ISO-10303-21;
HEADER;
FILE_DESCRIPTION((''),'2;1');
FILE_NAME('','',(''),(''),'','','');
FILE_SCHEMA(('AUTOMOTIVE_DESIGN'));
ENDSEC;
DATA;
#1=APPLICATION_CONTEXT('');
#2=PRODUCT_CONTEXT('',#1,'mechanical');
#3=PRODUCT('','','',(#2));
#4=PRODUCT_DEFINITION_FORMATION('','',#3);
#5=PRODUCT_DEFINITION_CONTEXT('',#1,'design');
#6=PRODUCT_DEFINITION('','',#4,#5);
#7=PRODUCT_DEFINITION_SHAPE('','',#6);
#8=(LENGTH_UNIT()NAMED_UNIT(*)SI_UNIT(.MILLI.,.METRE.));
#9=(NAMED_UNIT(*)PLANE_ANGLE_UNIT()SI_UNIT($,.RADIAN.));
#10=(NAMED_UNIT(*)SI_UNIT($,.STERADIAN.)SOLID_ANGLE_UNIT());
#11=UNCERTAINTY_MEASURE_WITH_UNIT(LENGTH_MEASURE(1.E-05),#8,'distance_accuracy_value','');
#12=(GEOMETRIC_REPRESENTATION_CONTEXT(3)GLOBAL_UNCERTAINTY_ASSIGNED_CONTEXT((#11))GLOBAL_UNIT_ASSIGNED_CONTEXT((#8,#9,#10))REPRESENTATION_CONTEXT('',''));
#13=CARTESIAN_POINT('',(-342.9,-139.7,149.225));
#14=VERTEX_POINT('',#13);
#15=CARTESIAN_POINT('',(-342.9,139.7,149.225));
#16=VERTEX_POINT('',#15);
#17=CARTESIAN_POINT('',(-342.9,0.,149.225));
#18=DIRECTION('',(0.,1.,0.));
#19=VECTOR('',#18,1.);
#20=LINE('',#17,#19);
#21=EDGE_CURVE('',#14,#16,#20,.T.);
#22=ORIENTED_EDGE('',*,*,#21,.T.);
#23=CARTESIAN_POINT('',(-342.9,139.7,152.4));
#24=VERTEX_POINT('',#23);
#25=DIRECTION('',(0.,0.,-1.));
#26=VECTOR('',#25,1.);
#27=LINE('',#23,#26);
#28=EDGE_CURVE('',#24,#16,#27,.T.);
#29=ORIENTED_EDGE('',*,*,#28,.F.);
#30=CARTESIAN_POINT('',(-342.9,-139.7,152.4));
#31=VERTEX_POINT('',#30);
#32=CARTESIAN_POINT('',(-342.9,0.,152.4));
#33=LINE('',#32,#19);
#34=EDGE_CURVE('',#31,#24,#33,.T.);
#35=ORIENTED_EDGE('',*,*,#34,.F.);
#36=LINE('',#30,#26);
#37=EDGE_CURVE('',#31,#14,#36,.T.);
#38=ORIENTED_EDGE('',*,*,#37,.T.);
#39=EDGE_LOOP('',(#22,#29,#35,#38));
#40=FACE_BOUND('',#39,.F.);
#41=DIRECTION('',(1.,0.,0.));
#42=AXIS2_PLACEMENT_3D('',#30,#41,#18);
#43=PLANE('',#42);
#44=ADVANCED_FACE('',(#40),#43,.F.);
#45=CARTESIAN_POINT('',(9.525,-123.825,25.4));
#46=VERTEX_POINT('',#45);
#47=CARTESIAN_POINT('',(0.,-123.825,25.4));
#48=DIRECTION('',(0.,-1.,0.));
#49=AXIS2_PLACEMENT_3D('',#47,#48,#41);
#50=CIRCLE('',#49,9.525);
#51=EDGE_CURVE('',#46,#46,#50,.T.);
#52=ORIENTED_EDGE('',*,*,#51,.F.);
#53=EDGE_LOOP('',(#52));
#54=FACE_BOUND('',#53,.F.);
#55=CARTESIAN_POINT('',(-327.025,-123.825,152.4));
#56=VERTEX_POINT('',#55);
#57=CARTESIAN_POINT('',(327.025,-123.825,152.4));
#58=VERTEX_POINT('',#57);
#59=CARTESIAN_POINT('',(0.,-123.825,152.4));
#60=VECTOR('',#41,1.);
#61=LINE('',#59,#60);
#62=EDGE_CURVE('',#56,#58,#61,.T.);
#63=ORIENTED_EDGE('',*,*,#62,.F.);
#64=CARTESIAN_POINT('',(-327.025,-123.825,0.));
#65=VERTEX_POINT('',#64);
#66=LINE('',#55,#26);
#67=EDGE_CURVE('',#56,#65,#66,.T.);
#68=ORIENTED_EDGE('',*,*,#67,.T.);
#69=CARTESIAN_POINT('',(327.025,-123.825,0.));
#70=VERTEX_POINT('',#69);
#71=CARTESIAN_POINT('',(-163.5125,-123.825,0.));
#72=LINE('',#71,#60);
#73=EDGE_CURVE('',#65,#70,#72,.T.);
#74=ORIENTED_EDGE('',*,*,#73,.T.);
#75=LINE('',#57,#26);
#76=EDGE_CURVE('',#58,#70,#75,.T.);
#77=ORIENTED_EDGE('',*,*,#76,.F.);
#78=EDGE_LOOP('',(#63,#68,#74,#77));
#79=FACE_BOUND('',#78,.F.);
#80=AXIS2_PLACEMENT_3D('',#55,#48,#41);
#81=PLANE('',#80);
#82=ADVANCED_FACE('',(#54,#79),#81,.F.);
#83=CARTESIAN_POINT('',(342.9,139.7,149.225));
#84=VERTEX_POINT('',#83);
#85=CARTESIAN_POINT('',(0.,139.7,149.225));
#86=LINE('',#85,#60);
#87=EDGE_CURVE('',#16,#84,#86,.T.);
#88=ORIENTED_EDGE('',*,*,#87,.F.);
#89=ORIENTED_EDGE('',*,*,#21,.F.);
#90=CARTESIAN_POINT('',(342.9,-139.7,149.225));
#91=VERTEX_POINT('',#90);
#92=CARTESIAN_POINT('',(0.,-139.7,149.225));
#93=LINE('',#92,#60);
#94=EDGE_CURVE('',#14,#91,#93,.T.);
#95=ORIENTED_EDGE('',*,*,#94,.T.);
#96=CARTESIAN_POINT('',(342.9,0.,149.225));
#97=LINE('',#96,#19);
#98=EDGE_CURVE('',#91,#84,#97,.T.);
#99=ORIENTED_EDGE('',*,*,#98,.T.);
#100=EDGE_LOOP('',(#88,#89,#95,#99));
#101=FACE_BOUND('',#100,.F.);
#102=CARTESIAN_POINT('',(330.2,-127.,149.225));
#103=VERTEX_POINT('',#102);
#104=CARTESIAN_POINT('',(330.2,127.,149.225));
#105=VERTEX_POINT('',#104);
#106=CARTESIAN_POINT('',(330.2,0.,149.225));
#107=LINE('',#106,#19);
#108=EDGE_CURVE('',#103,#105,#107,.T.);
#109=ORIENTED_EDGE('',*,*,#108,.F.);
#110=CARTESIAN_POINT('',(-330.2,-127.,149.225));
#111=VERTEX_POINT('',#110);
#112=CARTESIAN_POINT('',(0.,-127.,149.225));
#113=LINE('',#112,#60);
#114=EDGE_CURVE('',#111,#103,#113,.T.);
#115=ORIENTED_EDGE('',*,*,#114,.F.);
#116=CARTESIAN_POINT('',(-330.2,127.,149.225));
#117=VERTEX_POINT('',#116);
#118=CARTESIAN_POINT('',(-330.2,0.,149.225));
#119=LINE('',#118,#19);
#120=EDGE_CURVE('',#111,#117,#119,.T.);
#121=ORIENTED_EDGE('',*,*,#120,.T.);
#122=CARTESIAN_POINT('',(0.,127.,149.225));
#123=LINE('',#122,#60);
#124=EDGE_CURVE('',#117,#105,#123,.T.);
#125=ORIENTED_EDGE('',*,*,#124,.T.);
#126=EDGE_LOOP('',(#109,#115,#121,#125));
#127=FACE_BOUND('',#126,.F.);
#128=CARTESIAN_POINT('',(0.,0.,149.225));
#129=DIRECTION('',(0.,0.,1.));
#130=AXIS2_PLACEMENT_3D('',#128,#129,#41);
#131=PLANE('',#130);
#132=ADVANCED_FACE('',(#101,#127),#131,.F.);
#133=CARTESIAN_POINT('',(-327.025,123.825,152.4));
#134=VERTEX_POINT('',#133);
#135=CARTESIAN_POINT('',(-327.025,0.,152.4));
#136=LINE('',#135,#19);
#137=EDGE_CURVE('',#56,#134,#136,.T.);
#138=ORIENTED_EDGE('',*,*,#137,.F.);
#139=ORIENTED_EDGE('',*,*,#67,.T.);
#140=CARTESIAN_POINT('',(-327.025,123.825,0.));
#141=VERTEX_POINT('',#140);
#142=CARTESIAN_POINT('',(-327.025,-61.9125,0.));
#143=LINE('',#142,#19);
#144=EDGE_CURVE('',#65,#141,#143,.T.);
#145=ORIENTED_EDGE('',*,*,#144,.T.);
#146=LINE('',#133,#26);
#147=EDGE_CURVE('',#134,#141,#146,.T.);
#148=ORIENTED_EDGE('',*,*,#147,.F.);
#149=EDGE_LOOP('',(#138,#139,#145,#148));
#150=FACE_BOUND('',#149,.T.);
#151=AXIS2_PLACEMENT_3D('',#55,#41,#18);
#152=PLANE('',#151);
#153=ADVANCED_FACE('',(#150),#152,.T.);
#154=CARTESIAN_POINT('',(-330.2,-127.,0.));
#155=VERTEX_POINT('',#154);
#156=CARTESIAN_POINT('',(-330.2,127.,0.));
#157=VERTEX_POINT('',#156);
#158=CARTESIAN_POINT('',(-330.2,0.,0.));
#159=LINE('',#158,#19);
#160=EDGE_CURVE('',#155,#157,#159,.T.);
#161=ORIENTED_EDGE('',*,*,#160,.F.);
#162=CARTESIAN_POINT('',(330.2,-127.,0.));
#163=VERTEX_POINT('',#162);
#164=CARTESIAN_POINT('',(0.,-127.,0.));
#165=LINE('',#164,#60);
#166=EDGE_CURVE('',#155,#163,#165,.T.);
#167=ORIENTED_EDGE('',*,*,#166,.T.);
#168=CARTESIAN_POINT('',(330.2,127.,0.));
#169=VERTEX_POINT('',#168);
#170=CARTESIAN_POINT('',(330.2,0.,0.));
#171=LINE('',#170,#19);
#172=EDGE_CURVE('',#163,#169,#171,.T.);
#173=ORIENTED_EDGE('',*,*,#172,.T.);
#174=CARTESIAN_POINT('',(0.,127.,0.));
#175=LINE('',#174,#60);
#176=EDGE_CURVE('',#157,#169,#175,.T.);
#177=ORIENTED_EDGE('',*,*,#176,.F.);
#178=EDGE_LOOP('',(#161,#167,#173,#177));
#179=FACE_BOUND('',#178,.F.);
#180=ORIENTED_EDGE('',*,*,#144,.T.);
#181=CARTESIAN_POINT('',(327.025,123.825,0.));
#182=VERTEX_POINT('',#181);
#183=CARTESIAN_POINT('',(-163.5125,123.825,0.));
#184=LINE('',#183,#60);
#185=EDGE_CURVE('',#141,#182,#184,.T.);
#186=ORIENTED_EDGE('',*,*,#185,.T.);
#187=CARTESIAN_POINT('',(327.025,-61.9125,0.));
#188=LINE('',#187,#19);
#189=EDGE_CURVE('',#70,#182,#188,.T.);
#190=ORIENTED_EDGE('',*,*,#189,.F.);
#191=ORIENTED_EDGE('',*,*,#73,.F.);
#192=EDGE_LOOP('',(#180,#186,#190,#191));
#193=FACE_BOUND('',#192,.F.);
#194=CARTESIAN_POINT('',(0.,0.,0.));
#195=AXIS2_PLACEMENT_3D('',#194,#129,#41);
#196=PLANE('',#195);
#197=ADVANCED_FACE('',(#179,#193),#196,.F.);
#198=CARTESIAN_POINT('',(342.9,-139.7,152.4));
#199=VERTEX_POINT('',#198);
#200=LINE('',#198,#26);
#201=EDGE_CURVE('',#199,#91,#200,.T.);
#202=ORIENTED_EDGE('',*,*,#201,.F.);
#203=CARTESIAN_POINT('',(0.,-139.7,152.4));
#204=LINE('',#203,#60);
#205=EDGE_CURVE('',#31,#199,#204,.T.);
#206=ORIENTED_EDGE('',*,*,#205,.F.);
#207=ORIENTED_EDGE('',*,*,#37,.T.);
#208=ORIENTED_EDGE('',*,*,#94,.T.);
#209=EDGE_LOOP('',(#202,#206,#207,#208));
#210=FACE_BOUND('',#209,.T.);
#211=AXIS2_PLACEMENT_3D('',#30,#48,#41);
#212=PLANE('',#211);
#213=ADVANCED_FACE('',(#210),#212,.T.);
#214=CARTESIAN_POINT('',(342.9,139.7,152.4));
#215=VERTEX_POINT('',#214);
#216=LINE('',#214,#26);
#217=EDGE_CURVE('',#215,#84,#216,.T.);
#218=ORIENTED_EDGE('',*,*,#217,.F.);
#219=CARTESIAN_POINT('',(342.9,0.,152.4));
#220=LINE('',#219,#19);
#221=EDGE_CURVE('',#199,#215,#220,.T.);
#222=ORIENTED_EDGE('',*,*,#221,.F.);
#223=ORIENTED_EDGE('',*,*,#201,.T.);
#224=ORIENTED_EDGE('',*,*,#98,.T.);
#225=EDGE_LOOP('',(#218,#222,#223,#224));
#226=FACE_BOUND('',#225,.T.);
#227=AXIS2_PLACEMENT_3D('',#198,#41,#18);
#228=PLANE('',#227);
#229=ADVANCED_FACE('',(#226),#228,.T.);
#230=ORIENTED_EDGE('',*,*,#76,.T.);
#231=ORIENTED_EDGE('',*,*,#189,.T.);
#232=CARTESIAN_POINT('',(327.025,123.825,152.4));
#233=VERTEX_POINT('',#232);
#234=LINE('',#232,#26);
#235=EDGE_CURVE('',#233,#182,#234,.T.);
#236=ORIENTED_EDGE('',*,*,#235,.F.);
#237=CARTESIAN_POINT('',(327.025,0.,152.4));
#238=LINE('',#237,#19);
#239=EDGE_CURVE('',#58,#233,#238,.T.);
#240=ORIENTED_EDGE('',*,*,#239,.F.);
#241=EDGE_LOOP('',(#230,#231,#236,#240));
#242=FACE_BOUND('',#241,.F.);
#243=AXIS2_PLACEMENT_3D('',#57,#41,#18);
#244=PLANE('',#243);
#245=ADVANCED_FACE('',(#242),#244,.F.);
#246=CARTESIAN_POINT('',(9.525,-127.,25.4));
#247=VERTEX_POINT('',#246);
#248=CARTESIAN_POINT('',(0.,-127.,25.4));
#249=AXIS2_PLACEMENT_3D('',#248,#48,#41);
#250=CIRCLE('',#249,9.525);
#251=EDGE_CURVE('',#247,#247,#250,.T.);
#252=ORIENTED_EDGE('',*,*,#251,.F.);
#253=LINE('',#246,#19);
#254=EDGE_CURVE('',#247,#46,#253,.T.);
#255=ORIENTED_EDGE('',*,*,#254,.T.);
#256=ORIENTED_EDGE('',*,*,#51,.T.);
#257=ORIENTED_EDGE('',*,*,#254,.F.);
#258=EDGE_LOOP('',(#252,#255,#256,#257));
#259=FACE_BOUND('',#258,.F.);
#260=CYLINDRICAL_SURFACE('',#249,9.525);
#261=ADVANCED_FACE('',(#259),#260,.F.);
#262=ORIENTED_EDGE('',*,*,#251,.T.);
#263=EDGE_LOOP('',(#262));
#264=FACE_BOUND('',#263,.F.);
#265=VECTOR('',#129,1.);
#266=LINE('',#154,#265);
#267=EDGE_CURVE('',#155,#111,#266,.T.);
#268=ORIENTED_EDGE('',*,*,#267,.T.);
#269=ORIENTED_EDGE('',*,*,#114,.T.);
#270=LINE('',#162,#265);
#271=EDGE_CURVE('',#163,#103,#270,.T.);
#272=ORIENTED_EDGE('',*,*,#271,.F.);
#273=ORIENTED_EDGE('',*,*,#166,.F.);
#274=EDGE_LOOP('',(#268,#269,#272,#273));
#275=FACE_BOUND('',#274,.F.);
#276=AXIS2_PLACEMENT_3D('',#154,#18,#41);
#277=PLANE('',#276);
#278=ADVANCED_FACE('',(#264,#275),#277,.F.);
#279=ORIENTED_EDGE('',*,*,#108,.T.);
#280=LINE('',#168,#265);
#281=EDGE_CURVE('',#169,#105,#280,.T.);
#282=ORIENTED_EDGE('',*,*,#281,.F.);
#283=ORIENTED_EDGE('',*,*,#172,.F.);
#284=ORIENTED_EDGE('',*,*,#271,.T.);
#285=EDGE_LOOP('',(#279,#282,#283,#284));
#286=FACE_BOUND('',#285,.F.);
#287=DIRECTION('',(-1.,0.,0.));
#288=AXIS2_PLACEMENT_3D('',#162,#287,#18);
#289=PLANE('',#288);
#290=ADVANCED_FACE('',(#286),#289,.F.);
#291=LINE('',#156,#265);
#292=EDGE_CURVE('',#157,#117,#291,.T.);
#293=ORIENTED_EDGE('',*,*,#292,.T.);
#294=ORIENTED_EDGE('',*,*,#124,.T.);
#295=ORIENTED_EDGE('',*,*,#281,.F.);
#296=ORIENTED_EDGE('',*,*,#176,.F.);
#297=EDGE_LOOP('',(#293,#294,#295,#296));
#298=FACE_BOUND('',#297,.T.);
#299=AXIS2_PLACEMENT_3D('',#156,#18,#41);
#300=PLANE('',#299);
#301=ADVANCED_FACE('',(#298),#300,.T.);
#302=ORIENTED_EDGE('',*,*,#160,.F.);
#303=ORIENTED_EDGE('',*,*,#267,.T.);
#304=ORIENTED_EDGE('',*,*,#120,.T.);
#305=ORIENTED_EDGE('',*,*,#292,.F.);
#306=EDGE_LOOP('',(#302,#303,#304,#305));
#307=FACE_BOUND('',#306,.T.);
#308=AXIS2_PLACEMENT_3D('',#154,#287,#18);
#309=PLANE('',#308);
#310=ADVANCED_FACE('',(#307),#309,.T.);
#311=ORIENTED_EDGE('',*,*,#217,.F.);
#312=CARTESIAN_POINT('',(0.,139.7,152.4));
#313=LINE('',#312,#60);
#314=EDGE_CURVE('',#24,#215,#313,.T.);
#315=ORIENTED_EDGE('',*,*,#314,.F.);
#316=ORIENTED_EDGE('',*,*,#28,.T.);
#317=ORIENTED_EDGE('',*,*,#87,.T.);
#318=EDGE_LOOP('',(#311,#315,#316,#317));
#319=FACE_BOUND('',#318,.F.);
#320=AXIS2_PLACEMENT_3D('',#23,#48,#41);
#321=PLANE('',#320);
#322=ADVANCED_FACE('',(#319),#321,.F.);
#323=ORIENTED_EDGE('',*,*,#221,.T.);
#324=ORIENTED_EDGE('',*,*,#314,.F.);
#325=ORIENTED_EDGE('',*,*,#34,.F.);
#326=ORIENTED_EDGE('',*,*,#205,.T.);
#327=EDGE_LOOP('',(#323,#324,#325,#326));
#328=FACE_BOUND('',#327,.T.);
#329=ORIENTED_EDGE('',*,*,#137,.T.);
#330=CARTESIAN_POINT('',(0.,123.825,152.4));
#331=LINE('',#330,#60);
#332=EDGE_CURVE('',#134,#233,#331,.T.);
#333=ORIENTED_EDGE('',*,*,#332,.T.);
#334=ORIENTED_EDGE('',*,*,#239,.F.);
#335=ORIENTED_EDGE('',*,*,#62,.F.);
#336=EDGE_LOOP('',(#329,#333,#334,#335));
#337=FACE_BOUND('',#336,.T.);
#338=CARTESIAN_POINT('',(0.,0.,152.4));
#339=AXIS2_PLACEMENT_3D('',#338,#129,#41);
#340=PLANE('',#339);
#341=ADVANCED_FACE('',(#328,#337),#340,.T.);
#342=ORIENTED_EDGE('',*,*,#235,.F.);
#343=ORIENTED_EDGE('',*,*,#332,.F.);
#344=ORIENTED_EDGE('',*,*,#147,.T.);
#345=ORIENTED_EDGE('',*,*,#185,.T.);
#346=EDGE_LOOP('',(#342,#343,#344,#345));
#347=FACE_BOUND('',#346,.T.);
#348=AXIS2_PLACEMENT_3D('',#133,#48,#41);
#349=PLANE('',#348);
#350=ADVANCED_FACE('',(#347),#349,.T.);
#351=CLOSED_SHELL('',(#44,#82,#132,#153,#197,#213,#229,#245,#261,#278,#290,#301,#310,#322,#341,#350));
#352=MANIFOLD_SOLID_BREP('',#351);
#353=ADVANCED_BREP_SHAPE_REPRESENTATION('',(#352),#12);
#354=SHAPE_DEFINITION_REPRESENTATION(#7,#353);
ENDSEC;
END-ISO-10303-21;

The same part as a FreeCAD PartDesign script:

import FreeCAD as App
import Part
import Sketcher

V = App.Vector
Q = App.Units.Quantity

doc = App.newDocument("Part")
params = doc.addObject("Spreadsheet::Sheet", "Params")
for row, (alias, value) in enumerate([
    ("sketch1_width", "26 in"),
    ("sketch1_height", "10 in"),
    ("pad1_length", "6 in"),
    ("sketch2_width", "25.75 in"),
    ("sketch2_height", "9.75 in"),
    ("sketch3_width", "27 in"),
    ("sketch3_width2", "26 in"),
    ("sketch3_height", "11 in"),
    ("sketch3_height2", "10 in"),
    ("pad2_length", "0.125 in"),
    ("sketch4_diameter", "0.75 in"),
    ("pocket2_length", "0.125 in"),
], start=1):
    params.set(f"A{row}", alias)
    params.set(f"B{row}", "=" + value)
    params.setAlias(f"B{row}", alias)

body = doc.addObject("PartDesign::Body", "Body")

sketch1 = body.newObject("Sketcher::SketchObject", "Sketch")
sketch1.AttachmentSupport = (doc.getObject("XY_Plane"), [""])
sketch1.MapMode = "FlatFace"
sketch1.addGeometry([
    Part.LineSegment(V(-330.2, 127, 0), V(-330.2, -127, 0)),
    Part.LineSegment(V(-330.2, -127, 0), V(330.2, -127, 0)),
    Part.LineSegment(V(330.2, -127, 0), V(330.2, 127, 0)),
    Part.LineSegment(V(330.2, 127, 0), V(-330.2, 127, 0)),
], False)
sketch1.addConstraint([
    Sketcher.Constraint("Coincident", 0, 2, 1, 1),
    Sketcher.Constraint("Coincident", 1, 2, 2, 1),
    Sketcher.Constraint("Coincident", 2, 2, 3, 1),
    Sketcher.Constraint("Coincident", 3, 2, 0, 1),
    Sketcher.Constraint("Vertical", 0),
    Sketcher.Constraint("Horizontal", 1),
    Sketcher.Constraint("Vertical", 2),
    Sketcher.Constraint("Horizontal", 3),
    Sketcher.Constraint("Symmetric", 0, 2, 2, 2, -1, 1),
    Sketcher.Constraint("DistanceX", 1, 1, 1, 2, Q("26 in")),
    Sketcher.Constraint("DistanceY", 0, 2, 0, 1, Q("10 in")),
])
sketch1.setExpression("Constraints[9]", "Params.sketch1_width")
sketch1.setExpression("Constraints[10]", "Params.sketch1_height")
pad1 = body.newObject("PartDesign::Pad", "Pad")
pad1.Profile = sketch1
pad1.setExpression("Length", "Params.pad1_length")

sketch2 = body.newObject("Sketcher::SketchObject", "Sketch001")
sketch2.AttachmentSupport = (doc.getObject("XY_Plane"), [""])
sketch2.MapMode = "FlatFace"
sketch2.AttachmentOffset = App.Placement(V(0, 0, 6 * 25.4), App.Rotation())
sketch2.addGeometry([
    Part.LineSegment(V(-327.025, 123.825, 0), V(-327.025, -123.825, 0)),
    Part.LineSegment(V(-327.025, -123.825, 0), V(327.025, -123.825, 0)),
    Part.LineSegment(V(327.025, -123.825, 0), V(327.025, 123.825, 0)),
    Part.LineSegment(V(327.025, 123.825, 0), V(-327.025, 123.825, 0)),
], False)
sketch2.addConstraint([
    Sketcher.Constraint("Coincident", 0, 2, 1, 1),
    Sketcher.Constraint("Coincident", 1, 2, 2, 1),
    Sketcher.Constraint("Coincident", 2, 2, 3, 1),
    Sketcher.Constraint("Coincident", 3, 2, 0, 1),
    Sketcher.Constraint("Vertical", 0),
    Sketcher.Constraint("Horizontal", 1),
    Sketcher.Constraint("Vertical", 2),
    Sketcher.Constraint("Horizontal", 3),
    Sketcher.Constraint("Symmetric", 0, 2, 2, 2, -1, 1),
    Sketcher.Constraint("DistanceX", 1, 1, 1, 2, Q("25.75 in")),
    Sketcher.Constraint("DistanceY", 0, 2, 0, 1, Q("9.75 in")),
])
sketch2.setExpression("Constraints[9]", "Params.sketch2_width")
sketch2.setExpression("Constraints[10]", "Params.sketch2_height")
pocket1 = body.newObject("PartDesign::Pocket", "Pocket")
pocket1.Profile = sketch2
pocket1.Type = "ThroughAll"

sketch3 = body.newObject("Sketcher::SketchObject", "Sketch002")
sketch3.AttachmentSupport = (doc.getObject("XY_Plane"), [""])
sketch3.MapMode = "FlatFace"
sketch3.AttachmentOffset = App.Placement(V(0, 0, 6 * 25.4), App.Rotation())
sketch3.addGeometry([
    Part.LineSegment(V(-342.9, 139.7, 0), V(-342.9, -139.7, 0)),
    Part.LineSegment(V(-342.9, -139.7, 0), V(342.9, -139.7, 0)),
    Part.LineSegment(V(342.9, -139.7, 0), V(342.9, 139.7, 0)),
    Part.LineSegment(V(342.9, 139.7, 0), V(-342.9, 139.7, 0)),
    Part.LineSegment(V(330.2, -127, 0), V(-330.2, -127, 0)),
    Part.LineSegment(V(-330.2, -127, 0), V(-330.2, 127, 0)),
    Part.LineSegment(V(-330.2, 127, 0), V(330.2, 127, 0)),
    Part.LineSegment(V(330.2, 127, 0), V(330.2, -127, 0)),
], False)
sketch3.addConstraint([
    Sketcher.Constraint("Coincident", 0, 2, 1, 1),
    Sketcher.Constraint("Coincident", 1, 2, 2, 1),
    Sketcher.Constraint("Coincident", 2, 2, 3, 1),
    Sketcher.Constraint("Coincident", 3, 2, 0, 1),
    Sketcher.Constraint("Coincident", 4, 2, 5, 1),
    Sketcher.Constraint("Coincident", 5, 2, 6, 1),
    Sketcher.Constraint("Coincident", 6, 2, 7, 1),
    Sketcher.Constraint("Coincident", 7, 2, 4, 1),
    Sketcher.Constraint("Vertical", 0),
    Sketcher.Constraint("Horizontal", 1),
    Sketcher.Constraint("Vertical", 2),
    Sketcher.Constraint("Horizontal", 3),
    Sketcher.Constraint("Horizontal", 4),
    Sketcher.Constraint("Vertical", 5),
    Sketcher.Constraint("Horizontal", 6),
    Sketcher.Constraint("Vertical", 7),
    Sketcher.Constraint("Symmetric", 0, 2, 2, 2, -1, 1),
    Sketcher.Constraint("Symmetric", 4, 2, 6, 2, -1, 1),
    Sketcher.Constraint("DistanceX", 1, 1, 1, 2, Q("27 in")),
    Sketcher.Constraint("DistanceX", 4, 2, 4, 1, Q("26 in")),
    Sketcher.Constraint("DistanceY", 0, 2, 0, 1, Q("11 in")),
    Sketcher.Constraint("DistanceY", 5, 1, 5, 2, Q("10 in")),
])
sketch3.setExpression("Constraints[18]", "Params.sketch3_width")
sketch3.setExpression("Constraints[19]", "Params.sketch3_width2")
sketch3.setExpression("Constraints[20]", "Params.sketch3_height")
sketch3.setExpression("Constraints[21]", "Params.sketch3_height2")
pad2 = body.newObject("PartDesign::Pad", "Pad001")
pad2.Profile = sketch3
pad2.setExpression("Length", "Params.pad2_length")
pad2.Reversed = True

sketch4 = body.newObject("Sketcher::SketchObject", "Sketch003")
sketch4.AttachmentSupport = (doc.getObject("XZ_Plane"), [""])
sketch4.MapMode = "FlatFace"
sketch4.AttachmentOffset = App.Placement(V(0, 0, 5 * 25.4), App.Rotation())
sketch4.addGeometry(Part.Circle(V(0, 25.4, 0), V(0, 0, 1), 9.525), False)
sketch4.addConstraint([
    Sketcher.Constraint("PointOnObject", 0, 3, -2),
    Sketcher.Constraint("Diameter", 0, Q("0.75 in")),
    Sketcher.Constraint("DistanceY", -1, 1, 0, 3, Q("1 in")),
])
sketch4.setExpression("Constraints[1]", "Params.sketch4_diameter")
pocket2 = body.newObject("PartDesign::Pocket", "Pocket001")
pocket2.Profile = sketch4
pocket2.setExpression("Length", "Params.pocket2_length")

doc.recompute()
